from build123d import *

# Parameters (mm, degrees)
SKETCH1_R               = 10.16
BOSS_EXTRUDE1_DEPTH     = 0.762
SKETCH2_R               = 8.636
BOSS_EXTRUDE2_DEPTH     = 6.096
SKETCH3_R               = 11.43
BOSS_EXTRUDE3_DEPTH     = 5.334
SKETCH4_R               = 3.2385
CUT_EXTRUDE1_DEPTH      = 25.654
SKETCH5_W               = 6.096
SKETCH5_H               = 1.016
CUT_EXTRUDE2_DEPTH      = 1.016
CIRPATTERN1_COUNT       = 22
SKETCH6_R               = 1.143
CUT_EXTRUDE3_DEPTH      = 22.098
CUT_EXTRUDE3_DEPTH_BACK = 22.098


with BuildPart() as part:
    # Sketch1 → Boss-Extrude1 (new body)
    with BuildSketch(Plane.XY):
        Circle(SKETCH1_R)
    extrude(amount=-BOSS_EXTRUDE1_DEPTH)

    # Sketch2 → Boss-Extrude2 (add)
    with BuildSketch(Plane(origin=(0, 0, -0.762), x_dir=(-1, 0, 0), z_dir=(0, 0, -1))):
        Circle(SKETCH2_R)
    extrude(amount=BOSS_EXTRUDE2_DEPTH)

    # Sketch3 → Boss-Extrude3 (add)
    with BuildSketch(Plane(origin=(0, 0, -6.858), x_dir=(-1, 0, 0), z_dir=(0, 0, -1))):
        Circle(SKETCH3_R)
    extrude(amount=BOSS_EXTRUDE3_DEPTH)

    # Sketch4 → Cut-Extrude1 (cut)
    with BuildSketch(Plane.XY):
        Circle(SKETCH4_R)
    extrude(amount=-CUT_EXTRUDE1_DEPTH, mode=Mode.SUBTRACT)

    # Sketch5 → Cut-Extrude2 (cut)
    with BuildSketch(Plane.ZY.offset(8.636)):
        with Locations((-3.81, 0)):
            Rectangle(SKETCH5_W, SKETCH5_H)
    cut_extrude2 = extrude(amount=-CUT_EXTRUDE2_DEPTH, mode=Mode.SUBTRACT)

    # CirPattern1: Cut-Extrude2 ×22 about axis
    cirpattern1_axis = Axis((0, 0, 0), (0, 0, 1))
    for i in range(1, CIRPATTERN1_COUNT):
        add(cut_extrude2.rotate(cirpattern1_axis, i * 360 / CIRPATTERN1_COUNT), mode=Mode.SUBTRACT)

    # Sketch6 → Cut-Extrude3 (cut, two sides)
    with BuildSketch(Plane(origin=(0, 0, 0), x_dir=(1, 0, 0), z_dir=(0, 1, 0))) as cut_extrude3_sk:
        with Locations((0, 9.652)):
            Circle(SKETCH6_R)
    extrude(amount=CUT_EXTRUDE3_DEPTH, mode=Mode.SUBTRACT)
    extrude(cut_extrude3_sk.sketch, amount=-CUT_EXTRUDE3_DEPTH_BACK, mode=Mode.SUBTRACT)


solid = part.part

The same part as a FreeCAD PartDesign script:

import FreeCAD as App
import Part
import Sketcher
Q = App.Units.Quantity

doc = App.newDocument("Part")
body = doc.addObject("PartDesign::Body", "Body")

# Sketch on XY plane
sketch1 = body.newObject("Sketcher::SketchObject", "Sketch")
sketch1.AttachmentSupport = (doc.getObject("XY_Plane"), [""])
sketch1.MapMode = "FlatFace"
sketch1.addGeometry(Part.Circle(App.Vector(0, 0, 0), App.Vector(0, 0, 1), 10), False)
sketch1.addConstraint([
    Sketcher.Constraint("Coincident", 0, 3, -1, 1),
    Sketcher.Constraint("Diameter", 0, Q("0.8 in")),
])
pad1 = body.newObject("PartDesign::Pad", "Pad")
pad1.Profile = sketch1
pad1.Length = Q("0.03 in")
pad1.Reversed = True

# Sketch on XY plane
sketch2 = body.newObject("Sketcher::SketchObject", "Sketch001")
sketch2.AttachmentSupport = (doc.getObject("XY_Plane"), [""])
sketch2.MapMode = "FlatFace"
sketch2.AttachmentOffset = App.Placement(App.Vector(0, 0, -0.03 * 25.4), App.Rotation())
sketch2.addGeometry(Part.Circle(App.Vector(0, 0, 0), App.Vector(0, 0, 1), 9), False)
sketch2.addConstraint([
    Sketcher.Constraint("Coincident", 0, 3, -1, 1),
    Sketcher.Constraint("Diameter", 0, Q("0.68 in")),
])
pad2 = body.newObject("PartDesign::Pad", "Pad001")
pad2.Profile = sketch2
pad2.Length = Q("0.24 in")
pad2.Reversed = True

# Sketch on XY plane
sketch3 = body.newObject("Sketcher::SketchObject", "Sketch002")
sketch3.AttachmentSupport = (doc.getObject("XY_Plane"), [""])
sketch3.MapMode = "FlatFace"
sketch3.AttachmentOffset = App.Placement(App.Vector(0, 0, -0.27 * 25.4), App.Rotation())
sketch3.addGeometry(Part.Circle(App.Vector(0, 0, 0), App.Vector(0, 0, 1), 11), False)
sketch3.addConstraint([
    Sketcher.Constraint("Coincident", 0, 3, -1, 1),
    Sketcher.Constraint("Diameter", 0, Q("0.9 in")),
])
pad3 = body.newObject("PartDesign::Pad", "Pad002")
pad3.Profile = sketch3
pad3.Length = Q("0.21 in")
pad3.Reversed = True

# Sketch on XY plane
sketch4 = body.newObject("Sketcher::SketchObject", "Sketch003")
sketch4.AttachmentSupport = (doc.getObject("XY_Plane"), [""])
sketch4.MapMode = "FlatFace"
sketch4.addGeometry(Part.Circle(App.Vector(0, 0, 0), App.Vector(0, 0, 1), 3.2), False)
sketch4.addConstraint([
    Sketcher.Constraint("Coincident", 0, 3, -1, 1),
    Sketcher.Constraint("Diameter", 0, Q("0.255 in")),
])
pocket1 = body.newObject("PartDesign::Pocket", "Pocket")
pocket1.Profile = sketch4
pocket1.Length = Q("1.01 in")

# Sketch on YZ plane
sketch5 = body.newObject("Sketcher::SketchObject", "Sketch004")
sketch5.AttachmentSupport = (doc.getObject("YZ_Plane"), [""])
sketch5.MapMode = "FlatFace"
sketch5.AttachmentOffset = App.Placement(App.Vector(0, 0, -0.34 * 25.4), App.Rotation())
sketch5.addGeometry([
    Part.LineSegment(App.Vector(0.5, -6.9, 0), App.Vector(-0.5, -6.9, 0)),
    Part.LineSegment(App.Vector(-0.5, -6.9, 0), App.Vector(-0.5, -0.8, 0)),
    Part.LineSegment(App.Vector(-0.5, -0.8, 0), App.Vector(0.5, -0.8, 0)),
    Part.LineSegment(App.Vector(0.5, -0.8, 0), App.Vector(0.5, -6.9, 0)),
], False)
sketch5.addConstraint([
    Sketcher.Constraint("Coincident", 0, 2, 1, 1),
    Sketcher.Constraint("Coincident", 1, 2, 2, 1),
    Sketcher.Constraint("Coincident", 2, 2, 3, 1),
    Sketcher.Constraint("Coincident", 3, 2, 0, 1),
    Sketcher.Constraint("Horizontal", 0),
    Sketcher.Constraint("Vertical", 1),
    Sketcher.Constraint("Horizontal", 2),
    Sketcher.Constraint("Vertical", 3),
    Sketcher.Constraint("DistanceX", 0, 2, 0, 1, Q("0.04 in")),
    Sketcher.Constraint("DistanceY", 1, 1, 1, 2, Q("0.24 in")),
    Sketcher.Constraint("DistanceX", 0, 2, -1, 1, Q("0.02 in")),
    Sketcher.Constraint("DistanceY", 0, 2, -1, 1, Q("0.27 in")),
])
pocket2 = body.newObject("PartDesign::Pocket", "Pocket001")
pocket2.Profile = sketch5
pocket2.Length = Q("0.04 in")
pocket2.Reversed = True
doc.recompute()

polarpattern = body.newObject("PartDesign::PolarPattern", "PolarPattern")
polarpattern.Originals = [pocket2]
polarpattern.Axis = (doc.getObject("Z_Axis"), [""])
polarpattern.Angle = 360
polarpattern.Occurrences = 22
body.Tip = polarpattern

# Sketch on XZ plane
sketch6 = body.newObject("Sketcher::SketchObject", "Sketch005")
sketch6.AttachmentSupport = (doc.getObject("XZ_Plane"), [""])
sketch6.MapMode = "FlatFace"
sketch6.addGeometry(Part.Circle(App.Vector(0, -9.7, 0), App.Vector(0, 0, 1), 1.1), False)
sketch6.addConstraint([
    Sketcher.Constraint("PointOnObject", 0, 3, -2),
    Sketcher.Constraint("Diameter", 0, Q("0.09 in")),
    Sketcher.Constraint("DistanceY", 0, 3, -1, 1, Q("0.38 in")),
])
pocket3 = body.newObject("PartDesign::Pocket", "Pocket002")
pocket3.Profile = sketch6
pocket3.Type = "ThroughAll"
pocket3.Midplane = True

doc.recompute()
